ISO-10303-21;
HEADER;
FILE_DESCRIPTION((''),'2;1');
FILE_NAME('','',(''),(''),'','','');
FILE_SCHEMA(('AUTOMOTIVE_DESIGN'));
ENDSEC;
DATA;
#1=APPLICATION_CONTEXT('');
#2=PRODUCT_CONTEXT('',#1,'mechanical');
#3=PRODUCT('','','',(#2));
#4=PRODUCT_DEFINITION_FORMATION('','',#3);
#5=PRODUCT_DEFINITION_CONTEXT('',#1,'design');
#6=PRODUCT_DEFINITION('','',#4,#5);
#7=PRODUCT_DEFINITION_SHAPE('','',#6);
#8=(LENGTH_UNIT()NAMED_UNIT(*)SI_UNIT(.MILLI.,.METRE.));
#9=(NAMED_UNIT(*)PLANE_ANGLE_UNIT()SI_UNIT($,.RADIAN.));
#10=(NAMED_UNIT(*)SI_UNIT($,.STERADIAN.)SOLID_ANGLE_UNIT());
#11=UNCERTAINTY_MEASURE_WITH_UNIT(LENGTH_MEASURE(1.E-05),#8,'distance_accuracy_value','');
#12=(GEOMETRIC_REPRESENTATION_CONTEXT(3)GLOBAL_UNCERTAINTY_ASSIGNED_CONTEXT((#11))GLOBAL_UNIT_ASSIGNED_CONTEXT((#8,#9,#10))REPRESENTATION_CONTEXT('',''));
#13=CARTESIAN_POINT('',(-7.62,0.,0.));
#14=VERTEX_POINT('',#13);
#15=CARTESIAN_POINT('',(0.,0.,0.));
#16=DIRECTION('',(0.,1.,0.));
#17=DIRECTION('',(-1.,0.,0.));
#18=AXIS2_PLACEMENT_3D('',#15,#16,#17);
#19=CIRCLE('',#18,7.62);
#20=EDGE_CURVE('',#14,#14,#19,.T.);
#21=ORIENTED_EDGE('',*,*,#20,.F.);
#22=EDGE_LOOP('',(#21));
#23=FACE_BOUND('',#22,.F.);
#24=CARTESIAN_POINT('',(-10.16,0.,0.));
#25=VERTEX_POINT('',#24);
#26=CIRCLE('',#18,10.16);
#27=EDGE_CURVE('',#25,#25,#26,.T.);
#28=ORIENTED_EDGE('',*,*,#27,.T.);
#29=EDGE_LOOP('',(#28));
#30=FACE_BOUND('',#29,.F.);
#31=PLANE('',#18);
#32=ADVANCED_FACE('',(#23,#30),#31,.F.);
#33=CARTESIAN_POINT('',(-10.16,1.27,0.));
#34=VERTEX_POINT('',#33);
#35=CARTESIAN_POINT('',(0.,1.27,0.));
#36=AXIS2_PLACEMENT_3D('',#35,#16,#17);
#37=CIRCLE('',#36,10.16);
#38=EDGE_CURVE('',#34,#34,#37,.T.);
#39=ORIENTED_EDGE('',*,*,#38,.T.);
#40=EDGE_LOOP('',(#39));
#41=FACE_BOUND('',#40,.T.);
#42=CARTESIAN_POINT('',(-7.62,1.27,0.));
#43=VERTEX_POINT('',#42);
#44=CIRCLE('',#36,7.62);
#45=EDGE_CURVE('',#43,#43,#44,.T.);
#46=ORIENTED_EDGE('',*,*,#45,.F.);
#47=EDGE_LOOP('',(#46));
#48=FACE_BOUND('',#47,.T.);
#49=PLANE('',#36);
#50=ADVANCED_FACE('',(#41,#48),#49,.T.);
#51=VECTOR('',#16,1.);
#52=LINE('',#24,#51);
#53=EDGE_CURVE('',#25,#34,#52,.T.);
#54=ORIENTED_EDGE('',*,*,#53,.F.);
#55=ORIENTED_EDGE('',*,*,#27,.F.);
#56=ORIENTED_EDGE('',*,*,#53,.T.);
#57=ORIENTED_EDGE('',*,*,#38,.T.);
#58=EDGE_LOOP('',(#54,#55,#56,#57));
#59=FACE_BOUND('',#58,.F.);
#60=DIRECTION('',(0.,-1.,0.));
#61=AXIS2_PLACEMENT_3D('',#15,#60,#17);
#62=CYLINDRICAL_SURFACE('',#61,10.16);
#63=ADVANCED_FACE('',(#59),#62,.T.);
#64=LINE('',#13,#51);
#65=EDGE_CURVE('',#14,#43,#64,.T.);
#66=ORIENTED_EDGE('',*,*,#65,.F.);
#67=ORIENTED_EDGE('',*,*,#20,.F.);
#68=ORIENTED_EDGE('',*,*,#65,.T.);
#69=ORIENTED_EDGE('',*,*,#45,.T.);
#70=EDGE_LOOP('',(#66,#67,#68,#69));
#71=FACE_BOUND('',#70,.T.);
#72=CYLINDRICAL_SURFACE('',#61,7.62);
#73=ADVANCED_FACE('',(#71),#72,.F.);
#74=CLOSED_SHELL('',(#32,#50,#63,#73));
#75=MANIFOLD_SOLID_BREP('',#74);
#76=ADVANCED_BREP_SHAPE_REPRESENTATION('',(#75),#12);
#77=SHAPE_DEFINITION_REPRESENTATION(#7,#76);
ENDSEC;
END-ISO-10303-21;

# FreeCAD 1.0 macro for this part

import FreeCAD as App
import Part
import Sketcher

V = App.Vector
Q = App.Units.Quantity

doc = App.newDocument("Part")
body = doc.addObject("PartDesign::Body", "Body")

sketch1 = body.newObject("Sketcher::SketchObject", "Sketch")
sketch1.AttachmentSupport = (doc.getObject("XZ_Plane"), [""])
sketch1.MapMode = "FlatFace"
sketch1.addGeometry([
    Part.Circle(V(0, 0, 0), V(0, 0, 1), 10),
    Part.Circle(V(0, 0, 0), V(0, 0, 1), 8),
], False)
sketch1.addConstraint([
    Sketcher.Constraint("Coincident", 0, 3, -1, 1),
    Sketcher.Constraint("Coincident", 1, 3, -1, 1),
    Sketcher.Constraint("Diameter", 0, Q("0.8 in")),
    Sketcher.Constraint("Diameter", 1, Q("0.6 in")),
])
pad1 = body.newObject("PartDesign::Pad", "Pad")
pad1.Profile = sketch1
pad1.Length = Q("0.05 in")
pad1.Reversed = True

doc.recompute()
